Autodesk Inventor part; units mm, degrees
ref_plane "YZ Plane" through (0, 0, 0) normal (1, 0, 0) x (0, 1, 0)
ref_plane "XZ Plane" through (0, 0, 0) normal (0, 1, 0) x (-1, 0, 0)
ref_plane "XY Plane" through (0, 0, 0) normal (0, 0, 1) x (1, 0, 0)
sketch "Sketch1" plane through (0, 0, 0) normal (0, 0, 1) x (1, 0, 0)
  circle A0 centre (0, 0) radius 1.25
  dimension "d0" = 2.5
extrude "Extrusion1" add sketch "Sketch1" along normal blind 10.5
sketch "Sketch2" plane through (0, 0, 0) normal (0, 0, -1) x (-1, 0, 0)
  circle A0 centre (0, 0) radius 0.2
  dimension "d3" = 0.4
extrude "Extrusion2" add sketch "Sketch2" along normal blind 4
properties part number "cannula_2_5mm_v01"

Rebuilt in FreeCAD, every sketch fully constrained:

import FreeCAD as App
import Part
import Sketcher

V = App.Vector
Q = App.Units.Quantity

doc = App.newDocument("Part")
body = doc.addObject("PartDesign::Body", "Body")

# Sketch on XY plane
sketch1 = body.newObject("Sketcher::SketchObject", "Sketch")
sketch1.AttachmentSupport = (doc.getObject("XY_Plane"), [""])
sketch1.MapMode = "FlatFace"
sketch1.addGeometry(Part.Circle(V(0, 0, 0), V(0, 0, 1), 1.2), False)
sketch1.addConstraint([
    Sketcher.Constraint("Coincident", 0, 3, -1, 1),
    Sketcher.Constraint("Diameter", 0, Q("2.5 mm")),
])
pad1 = body.newObject("PartDesign::Pad", "Pad")
pad1.Profile = sketch1
pad1.Length = 10.5

# Sketch on XY plane
sketch2 = body.newObject("Sketcher::SketchObject", "Sketch001")
sketch2.AttachmentSupport = (doc.getObject("XY_Plane"), [""])
sketch2.MapMode = "FlatFace"
sketch2.addGeometry(Part.Circle(V(0, 0, 0), V(0, 0, 1), 0.2), False)
sketch2.addConstraint([
    Sketcher.Constraint("Coincident", 0, 3, -1, 1),
    Sketcher.Constraint("Diameter", 0, Q("0.4 mm")),
])
pad2 = body.newObject("PartDesign::Pad", "Pad001")
pad2.Profile = sketch2
pad2.Length = 4
pad2.Reversed = True

doc.recompute()
